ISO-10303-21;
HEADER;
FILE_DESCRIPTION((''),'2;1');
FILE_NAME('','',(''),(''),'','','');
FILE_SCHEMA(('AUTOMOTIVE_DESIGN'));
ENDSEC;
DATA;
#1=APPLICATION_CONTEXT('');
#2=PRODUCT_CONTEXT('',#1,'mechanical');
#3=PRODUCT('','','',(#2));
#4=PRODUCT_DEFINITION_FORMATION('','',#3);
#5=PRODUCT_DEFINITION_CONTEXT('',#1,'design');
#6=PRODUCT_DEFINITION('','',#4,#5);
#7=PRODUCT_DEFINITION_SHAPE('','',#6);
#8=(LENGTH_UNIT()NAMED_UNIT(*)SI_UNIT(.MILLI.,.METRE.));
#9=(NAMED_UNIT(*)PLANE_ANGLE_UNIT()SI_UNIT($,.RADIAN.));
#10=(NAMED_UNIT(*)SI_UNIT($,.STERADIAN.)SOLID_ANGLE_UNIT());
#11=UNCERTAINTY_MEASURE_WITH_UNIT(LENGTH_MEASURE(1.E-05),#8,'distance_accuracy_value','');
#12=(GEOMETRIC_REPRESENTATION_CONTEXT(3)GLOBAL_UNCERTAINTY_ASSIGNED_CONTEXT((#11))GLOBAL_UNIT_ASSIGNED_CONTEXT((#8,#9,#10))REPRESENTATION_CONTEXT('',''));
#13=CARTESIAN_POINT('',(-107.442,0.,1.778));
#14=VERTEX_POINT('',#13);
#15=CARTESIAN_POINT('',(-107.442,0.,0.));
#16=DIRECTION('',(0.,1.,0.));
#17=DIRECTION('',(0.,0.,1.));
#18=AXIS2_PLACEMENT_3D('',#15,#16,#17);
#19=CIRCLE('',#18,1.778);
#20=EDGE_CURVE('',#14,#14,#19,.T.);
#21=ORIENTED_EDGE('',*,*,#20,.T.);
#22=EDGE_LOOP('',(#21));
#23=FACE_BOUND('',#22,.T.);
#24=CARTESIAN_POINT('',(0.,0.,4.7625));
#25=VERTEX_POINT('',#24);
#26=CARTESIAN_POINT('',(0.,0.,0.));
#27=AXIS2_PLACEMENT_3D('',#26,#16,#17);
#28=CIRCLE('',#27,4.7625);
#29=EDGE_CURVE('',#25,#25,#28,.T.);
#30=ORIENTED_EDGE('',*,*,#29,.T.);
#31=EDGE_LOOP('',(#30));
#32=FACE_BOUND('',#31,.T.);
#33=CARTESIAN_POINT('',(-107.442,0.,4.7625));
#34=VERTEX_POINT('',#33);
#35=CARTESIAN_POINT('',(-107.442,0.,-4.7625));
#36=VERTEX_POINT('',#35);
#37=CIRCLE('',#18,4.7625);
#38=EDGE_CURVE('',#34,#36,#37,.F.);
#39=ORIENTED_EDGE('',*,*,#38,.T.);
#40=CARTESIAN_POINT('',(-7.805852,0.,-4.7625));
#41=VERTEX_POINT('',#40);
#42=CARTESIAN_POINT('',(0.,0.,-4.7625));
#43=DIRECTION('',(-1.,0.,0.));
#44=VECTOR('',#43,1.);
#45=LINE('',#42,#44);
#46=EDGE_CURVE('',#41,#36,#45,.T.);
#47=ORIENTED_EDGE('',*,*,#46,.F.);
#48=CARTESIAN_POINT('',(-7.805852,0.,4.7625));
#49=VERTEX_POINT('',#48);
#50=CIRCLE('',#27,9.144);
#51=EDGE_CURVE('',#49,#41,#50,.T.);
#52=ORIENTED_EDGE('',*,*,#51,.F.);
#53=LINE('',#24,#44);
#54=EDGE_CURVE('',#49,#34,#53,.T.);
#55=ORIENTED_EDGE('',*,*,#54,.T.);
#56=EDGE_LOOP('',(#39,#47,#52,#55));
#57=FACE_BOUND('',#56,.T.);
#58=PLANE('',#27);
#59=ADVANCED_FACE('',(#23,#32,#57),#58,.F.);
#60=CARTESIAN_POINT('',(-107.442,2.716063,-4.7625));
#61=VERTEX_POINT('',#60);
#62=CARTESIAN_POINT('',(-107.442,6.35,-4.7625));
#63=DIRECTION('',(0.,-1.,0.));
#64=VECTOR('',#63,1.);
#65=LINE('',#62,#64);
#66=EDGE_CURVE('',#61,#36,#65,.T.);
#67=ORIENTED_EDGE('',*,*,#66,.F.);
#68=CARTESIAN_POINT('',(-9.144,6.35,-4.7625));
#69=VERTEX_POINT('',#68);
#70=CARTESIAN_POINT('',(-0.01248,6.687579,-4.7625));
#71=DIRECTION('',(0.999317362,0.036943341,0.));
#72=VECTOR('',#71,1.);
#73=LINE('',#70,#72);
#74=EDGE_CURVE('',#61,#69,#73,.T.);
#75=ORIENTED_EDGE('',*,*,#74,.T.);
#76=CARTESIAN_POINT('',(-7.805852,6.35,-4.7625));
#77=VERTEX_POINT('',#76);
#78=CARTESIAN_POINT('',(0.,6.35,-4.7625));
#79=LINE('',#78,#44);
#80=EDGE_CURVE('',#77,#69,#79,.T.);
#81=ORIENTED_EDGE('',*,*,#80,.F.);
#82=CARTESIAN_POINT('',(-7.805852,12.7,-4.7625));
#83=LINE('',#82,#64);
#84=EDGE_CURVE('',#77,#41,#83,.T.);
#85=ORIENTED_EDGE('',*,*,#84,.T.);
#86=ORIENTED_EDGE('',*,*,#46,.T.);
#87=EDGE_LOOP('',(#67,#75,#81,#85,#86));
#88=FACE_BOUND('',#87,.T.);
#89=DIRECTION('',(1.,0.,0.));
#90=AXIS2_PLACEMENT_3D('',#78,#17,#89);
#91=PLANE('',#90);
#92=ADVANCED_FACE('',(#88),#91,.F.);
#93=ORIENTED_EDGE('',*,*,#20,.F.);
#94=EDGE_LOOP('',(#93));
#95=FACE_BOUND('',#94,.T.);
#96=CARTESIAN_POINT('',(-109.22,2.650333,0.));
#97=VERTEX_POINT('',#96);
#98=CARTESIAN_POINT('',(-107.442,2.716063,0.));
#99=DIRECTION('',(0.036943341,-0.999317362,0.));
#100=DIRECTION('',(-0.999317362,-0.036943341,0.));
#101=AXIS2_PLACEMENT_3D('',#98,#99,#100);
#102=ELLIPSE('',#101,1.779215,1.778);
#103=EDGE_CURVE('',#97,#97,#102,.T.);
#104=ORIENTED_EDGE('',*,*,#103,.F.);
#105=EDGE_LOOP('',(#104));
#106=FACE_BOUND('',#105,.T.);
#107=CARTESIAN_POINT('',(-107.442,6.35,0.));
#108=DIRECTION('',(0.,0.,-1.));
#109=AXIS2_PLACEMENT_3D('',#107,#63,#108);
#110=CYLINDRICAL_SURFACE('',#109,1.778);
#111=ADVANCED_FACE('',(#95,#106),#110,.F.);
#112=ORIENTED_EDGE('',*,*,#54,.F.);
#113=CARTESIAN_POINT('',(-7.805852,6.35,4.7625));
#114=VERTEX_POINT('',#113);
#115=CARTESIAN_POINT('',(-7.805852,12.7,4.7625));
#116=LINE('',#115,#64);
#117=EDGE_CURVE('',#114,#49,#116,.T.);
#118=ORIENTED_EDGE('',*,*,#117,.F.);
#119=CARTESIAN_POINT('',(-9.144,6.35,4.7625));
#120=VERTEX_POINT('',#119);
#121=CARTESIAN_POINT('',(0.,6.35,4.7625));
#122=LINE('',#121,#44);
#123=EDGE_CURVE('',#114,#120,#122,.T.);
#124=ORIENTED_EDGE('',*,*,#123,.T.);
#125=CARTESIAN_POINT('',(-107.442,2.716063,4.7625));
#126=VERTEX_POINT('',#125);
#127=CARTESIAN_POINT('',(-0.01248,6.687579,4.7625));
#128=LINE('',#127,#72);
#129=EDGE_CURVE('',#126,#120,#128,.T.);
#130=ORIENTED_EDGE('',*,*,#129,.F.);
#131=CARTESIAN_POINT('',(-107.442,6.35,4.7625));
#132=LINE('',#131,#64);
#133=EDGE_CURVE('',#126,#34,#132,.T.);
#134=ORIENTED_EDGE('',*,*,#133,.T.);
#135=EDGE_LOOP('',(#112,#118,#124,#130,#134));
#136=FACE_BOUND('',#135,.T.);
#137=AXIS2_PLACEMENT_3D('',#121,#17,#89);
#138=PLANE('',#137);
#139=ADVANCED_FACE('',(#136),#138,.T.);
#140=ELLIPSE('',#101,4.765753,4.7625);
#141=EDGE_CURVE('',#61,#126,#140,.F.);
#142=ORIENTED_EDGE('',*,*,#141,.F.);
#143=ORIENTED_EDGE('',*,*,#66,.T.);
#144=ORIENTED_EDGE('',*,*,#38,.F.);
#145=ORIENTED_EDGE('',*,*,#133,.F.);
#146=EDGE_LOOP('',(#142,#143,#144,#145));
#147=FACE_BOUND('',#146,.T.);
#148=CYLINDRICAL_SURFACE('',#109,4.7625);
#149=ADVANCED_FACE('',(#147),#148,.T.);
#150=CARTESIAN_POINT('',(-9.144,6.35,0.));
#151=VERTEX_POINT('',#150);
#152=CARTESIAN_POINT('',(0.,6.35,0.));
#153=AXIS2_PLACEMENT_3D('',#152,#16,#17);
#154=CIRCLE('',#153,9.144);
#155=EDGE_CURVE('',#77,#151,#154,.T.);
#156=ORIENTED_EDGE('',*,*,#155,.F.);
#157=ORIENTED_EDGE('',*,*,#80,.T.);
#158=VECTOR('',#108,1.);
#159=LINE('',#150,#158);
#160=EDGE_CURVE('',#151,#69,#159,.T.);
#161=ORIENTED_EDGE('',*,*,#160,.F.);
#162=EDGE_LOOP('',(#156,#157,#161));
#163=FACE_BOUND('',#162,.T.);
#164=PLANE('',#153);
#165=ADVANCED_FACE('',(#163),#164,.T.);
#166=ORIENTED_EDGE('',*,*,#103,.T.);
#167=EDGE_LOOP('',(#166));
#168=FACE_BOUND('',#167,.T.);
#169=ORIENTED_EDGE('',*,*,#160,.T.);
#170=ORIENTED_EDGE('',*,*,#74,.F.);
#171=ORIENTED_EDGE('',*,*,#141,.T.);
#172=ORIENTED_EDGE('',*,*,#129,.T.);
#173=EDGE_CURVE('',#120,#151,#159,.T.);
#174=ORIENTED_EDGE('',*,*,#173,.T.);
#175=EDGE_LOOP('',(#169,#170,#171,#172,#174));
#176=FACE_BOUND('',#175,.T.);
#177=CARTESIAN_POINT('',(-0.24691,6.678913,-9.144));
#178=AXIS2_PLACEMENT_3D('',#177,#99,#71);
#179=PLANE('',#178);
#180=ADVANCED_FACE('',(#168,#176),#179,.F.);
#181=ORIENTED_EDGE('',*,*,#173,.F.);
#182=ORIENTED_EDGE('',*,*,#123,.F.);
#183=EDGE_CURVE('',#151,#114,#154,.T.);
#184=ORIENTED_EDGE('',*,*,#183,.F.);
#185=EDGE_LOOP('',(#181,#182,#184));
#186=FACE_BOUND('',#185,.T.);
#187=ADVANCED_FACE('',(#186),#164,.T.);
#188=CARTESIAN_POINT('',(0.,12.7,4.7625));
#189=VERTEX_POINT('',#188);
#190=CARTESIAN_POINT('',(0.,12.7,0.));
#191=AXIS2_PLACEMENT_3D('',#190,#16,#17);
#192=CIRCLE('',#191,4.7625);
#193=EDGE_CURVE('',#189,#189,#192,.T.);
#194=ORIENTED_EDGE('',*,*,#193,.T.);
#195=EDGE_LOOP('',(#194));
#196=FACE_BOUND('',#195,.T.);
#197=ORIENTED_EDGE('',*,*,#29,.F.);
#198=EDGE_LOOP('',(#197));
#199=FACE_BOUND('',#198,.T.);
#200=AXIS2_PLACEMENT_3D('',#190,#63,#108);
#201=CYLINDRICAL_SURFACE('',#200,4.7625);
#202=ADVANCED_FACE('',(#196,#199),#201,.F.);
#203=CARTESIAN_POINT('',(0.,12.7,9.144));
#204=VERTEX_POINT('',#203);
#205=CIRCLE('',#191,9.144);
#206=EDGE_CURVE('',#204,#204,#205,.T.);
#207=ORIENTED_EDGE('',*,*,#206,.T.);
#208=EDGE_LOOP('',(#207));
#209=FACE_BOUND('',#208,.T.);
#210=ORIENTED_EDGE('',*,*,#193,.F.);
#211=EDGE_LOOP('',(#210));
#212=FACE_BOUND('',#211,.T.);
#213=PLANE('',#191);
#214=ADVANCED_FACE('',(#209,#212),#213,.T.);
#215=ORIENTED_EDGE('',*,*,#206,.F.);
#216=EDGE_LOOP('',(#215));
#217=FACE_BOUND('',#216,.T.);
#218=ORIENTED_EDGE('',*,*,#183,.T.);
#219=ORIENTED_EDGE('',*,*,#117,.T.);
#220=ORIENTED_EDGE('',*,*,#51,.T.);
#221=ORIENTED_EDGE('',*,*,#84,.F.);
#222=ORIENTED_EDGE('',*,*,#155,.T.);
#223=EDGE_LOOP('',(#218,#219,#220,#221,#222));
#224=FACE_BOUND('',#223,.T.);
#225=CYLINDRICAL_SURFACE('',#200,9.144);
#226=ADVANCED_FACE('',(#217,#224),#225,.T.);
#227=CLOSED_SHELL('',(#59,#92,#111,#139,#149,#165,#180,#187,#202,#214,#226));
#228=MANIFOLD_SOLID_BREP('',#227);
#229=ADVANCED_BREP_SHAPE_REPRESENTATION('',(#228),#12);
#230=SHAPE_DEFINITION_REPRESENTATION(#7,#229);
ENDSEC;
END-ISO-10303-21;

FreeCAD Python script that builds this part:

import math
import FreeCAD as App
import Part
import Sketcher
from FreeCAD import Vector
Q = App.Units.Quantity


def add_polygon(sketch, points):
    """Adds a closed chain of lines whose ends are joined by coincident constraints."""
    first, n = sketch.GeometryCount, len(points)
    for a, b in zip(points, points[1:] + points[:1]):
        sketch.addGeometry(Part.LineSegment(App.Vector(*a, 0), App.Vector(*b, 0)), False)
    for i in range(n):
        sketch.addConstraint(Sketcher.Constraint("Coincident", first + i, 2, first + (i + 1) % n, 1))

doc = App.newDocument("Part")
body = doc.addObject("PartDesign::Body", "Body")

# Sketch on XZ plane
sketch1 = doc.addObject("Sketcher::SketchObject", "Sketch")
body.addObject(sketch1)
sketch1.AttachmentSupport = (doc.XZ_Plane, [""])
sketch1.MapMode = "FlatFace"
sketch1.addGeometry(Part.Circle(Vector(0, 0, 0), Vector(0, 0, 1), 9.144), False)
sketch1.addGeometry(Part.Circle(Vector(0, 0, 0), Vector(0, 0, 1), 4.7625), False)
sketch1.addConstraint(Sketcher.Constraint("Coincident", 0, 3, -1, 1))
sketch1.addConstraint(Sketcher.Constraint("Coincident", 1, 3, -1, 1))
sketch1.addConstraint(Sketcher.Constraint("Diameter", 0, Q("0.72 in")))
sketch1.addConstraint(Sketcher.Constraint("Diameter", 1, Q("0.375 in")))
pad1 = doc.addObject("PartDesign::Pad", "Pad")
body.addObject(pad1)
pad1.Profile = sketch1
pad1.Length = Q("0.5 in")
pad1.Reversed = True

# Sketch on XZ plane
sketch2 = doc.addObject("Sketcher::SketchObject", "Sketch001")
body.addObject(sketch2)
sketch2.AttachmentSupport = (doc.XZ_Plane, [""])
sketch2.MapMode = "FlatFace"
sketch2.addGeometry(Part.LineSegment(Vector(0, 4.7625, 0), Vector(0, -4.7625, 0)), False)
sketch2.addGeometry(Part.LineSegment(Vector(0, -4.7625, 0), Vector(-107.442, -4.7625, 0)), False)
sketch2.addGeometry(Part.ArcOfCircle(Part.Circle(Vector(-107.442, 0, 0), Vector(0, 0, 1), 4.7625), math.radians(90), math.radians(270)), False)
sketch2.addGeometry(Part.LineSegment(Vector(-107.442, 4.7625, 0), Vector(0, 4.7625, 0)), False)
sketch2.addGeometry(Part.Circle(Vector(-107.442, 0, 0), Vector(0, 0, 1), 1.778), False)
sketch2.addConstraint(Sketcher.Constraint("Coincident", 0, 2, 1, 1))
sketch2.addConstraint(Sketcher.Constraint("Tangent", 1, 2, 2, 2))
sketch2.addConstraint(Sketcher.Constraint("Tangent", 2, 1, 3, 1))
sketch2.addConstraint(Sketcher.Constraint("Coincident", 3, 2, 0, 1))
sketch2.addConstraint(Sketcher.Constraint("Vertical", 0))
sketch2.addConstraint(Sketcher.Constraint("Horizontal", 1))
sketch2.addConstraint(Sketcher.Constraint("Horizontal", 3))
sketch2.addConstraint(Sketcher.Constraint("Coincident", 4, 3, 2, 3))
sketch2.addConstraint(Sketcher.Constraint("Symmetric", 0, 2, 3, 2, -1, 1))
sketch2.addConstraint(Sketcher.Constraint("Diameter", 4, Q("0.14 in")))
sketch2.addConstraint(Sketcher.Constraint("Radius", 2, Q("0.1875 in")))
sketch2.addConstraint(Sketcher.Constraint("DistanceX", 1, 2, 1, 1, Q("4.23 in")))
pad2 = doc.addObject("PartDesign::Pad", "Pad001")
body.addObject(pad2)
pad2.Profile = sketch2
pad2.Length = Q("0.25 in")
pad2.Reversed = True

# Sketch on XZ plane
sketch3 = doc.addObject("Sketcher::SketchObject", "Sketch002")
body.addObject(sketch3)
sketch3.AttachmentSupport = (doc.XZ_Plane, [""])
sketch3.MapMode = "FlatFace"
sketch3.AttachmentOffset = App.Placement(Vector(0, 0, -0.5 * 25.4), App.Rotation())
sketch3.addGeometry(Part.Circle(Vector(0, 0, 0), Vector(0, 0, 1), 4.7625), False)
sketch3.addConstraint(Sketcher.Constraint("Coincident", 0, 3, -1, 1))
sketch3.addConstraint(Sketcher.Constraint("Diameter", 0, Q("0.375 in")))
pocket1 = doc.addObject("PartDesign::Pocket", "Pocket")
body.addObject(pocket1)
pocket1.Profile = sketch3
pocket1.Length = Q("0.55 in")
pocket1.Reversed = True

# Sketch on XY plane
sketch4 = doc.addObject("Sketcher::SketchObject", "Sketch003")
body.addObject(sketch4)
sketch4.AttachmentSupport = (doc.XY_Plane, [""])
sketch4.MapMode = "FlatFace"
add_polygon(sketch4, [(-112.2045, 6.35), (-112.2045, 2.54), (-9.144, 6.35)])  # lines 0-2
sketch4.addConstraint(Sketcher.Constraint("Vertical", 0))
sketch4.addConstraint(Sketcher.Constraint("Horizontal", 2))
sketch4.addConstraint(Sketcher.Constraint("DistanceY", 0, 2, 0, 1, Q("0.15 in")))
sketch4.addConstraint(Sketcher.Constraint("DistanceY", -1, 1, 0, 2, Q("0.1 in")))
sketch4.addConstraint(Sketcher.Constraint("DistanceX", 1, 2, -1, 1, Q("0.36 in")))
sketch4.addConstraint(Sketcher.Constraint("DistanceX", 2, 2, 2, 1, Q("4.0575 in")))
pocket2 = doc.addObject("PartDesign::Pocket", "Pocket001")
body.addObject(pocket2)
pocket2.Profile = sketch4
pocket2.Type = "ThroughAll"
pocket2.Midplane = True

doc.recompute()
